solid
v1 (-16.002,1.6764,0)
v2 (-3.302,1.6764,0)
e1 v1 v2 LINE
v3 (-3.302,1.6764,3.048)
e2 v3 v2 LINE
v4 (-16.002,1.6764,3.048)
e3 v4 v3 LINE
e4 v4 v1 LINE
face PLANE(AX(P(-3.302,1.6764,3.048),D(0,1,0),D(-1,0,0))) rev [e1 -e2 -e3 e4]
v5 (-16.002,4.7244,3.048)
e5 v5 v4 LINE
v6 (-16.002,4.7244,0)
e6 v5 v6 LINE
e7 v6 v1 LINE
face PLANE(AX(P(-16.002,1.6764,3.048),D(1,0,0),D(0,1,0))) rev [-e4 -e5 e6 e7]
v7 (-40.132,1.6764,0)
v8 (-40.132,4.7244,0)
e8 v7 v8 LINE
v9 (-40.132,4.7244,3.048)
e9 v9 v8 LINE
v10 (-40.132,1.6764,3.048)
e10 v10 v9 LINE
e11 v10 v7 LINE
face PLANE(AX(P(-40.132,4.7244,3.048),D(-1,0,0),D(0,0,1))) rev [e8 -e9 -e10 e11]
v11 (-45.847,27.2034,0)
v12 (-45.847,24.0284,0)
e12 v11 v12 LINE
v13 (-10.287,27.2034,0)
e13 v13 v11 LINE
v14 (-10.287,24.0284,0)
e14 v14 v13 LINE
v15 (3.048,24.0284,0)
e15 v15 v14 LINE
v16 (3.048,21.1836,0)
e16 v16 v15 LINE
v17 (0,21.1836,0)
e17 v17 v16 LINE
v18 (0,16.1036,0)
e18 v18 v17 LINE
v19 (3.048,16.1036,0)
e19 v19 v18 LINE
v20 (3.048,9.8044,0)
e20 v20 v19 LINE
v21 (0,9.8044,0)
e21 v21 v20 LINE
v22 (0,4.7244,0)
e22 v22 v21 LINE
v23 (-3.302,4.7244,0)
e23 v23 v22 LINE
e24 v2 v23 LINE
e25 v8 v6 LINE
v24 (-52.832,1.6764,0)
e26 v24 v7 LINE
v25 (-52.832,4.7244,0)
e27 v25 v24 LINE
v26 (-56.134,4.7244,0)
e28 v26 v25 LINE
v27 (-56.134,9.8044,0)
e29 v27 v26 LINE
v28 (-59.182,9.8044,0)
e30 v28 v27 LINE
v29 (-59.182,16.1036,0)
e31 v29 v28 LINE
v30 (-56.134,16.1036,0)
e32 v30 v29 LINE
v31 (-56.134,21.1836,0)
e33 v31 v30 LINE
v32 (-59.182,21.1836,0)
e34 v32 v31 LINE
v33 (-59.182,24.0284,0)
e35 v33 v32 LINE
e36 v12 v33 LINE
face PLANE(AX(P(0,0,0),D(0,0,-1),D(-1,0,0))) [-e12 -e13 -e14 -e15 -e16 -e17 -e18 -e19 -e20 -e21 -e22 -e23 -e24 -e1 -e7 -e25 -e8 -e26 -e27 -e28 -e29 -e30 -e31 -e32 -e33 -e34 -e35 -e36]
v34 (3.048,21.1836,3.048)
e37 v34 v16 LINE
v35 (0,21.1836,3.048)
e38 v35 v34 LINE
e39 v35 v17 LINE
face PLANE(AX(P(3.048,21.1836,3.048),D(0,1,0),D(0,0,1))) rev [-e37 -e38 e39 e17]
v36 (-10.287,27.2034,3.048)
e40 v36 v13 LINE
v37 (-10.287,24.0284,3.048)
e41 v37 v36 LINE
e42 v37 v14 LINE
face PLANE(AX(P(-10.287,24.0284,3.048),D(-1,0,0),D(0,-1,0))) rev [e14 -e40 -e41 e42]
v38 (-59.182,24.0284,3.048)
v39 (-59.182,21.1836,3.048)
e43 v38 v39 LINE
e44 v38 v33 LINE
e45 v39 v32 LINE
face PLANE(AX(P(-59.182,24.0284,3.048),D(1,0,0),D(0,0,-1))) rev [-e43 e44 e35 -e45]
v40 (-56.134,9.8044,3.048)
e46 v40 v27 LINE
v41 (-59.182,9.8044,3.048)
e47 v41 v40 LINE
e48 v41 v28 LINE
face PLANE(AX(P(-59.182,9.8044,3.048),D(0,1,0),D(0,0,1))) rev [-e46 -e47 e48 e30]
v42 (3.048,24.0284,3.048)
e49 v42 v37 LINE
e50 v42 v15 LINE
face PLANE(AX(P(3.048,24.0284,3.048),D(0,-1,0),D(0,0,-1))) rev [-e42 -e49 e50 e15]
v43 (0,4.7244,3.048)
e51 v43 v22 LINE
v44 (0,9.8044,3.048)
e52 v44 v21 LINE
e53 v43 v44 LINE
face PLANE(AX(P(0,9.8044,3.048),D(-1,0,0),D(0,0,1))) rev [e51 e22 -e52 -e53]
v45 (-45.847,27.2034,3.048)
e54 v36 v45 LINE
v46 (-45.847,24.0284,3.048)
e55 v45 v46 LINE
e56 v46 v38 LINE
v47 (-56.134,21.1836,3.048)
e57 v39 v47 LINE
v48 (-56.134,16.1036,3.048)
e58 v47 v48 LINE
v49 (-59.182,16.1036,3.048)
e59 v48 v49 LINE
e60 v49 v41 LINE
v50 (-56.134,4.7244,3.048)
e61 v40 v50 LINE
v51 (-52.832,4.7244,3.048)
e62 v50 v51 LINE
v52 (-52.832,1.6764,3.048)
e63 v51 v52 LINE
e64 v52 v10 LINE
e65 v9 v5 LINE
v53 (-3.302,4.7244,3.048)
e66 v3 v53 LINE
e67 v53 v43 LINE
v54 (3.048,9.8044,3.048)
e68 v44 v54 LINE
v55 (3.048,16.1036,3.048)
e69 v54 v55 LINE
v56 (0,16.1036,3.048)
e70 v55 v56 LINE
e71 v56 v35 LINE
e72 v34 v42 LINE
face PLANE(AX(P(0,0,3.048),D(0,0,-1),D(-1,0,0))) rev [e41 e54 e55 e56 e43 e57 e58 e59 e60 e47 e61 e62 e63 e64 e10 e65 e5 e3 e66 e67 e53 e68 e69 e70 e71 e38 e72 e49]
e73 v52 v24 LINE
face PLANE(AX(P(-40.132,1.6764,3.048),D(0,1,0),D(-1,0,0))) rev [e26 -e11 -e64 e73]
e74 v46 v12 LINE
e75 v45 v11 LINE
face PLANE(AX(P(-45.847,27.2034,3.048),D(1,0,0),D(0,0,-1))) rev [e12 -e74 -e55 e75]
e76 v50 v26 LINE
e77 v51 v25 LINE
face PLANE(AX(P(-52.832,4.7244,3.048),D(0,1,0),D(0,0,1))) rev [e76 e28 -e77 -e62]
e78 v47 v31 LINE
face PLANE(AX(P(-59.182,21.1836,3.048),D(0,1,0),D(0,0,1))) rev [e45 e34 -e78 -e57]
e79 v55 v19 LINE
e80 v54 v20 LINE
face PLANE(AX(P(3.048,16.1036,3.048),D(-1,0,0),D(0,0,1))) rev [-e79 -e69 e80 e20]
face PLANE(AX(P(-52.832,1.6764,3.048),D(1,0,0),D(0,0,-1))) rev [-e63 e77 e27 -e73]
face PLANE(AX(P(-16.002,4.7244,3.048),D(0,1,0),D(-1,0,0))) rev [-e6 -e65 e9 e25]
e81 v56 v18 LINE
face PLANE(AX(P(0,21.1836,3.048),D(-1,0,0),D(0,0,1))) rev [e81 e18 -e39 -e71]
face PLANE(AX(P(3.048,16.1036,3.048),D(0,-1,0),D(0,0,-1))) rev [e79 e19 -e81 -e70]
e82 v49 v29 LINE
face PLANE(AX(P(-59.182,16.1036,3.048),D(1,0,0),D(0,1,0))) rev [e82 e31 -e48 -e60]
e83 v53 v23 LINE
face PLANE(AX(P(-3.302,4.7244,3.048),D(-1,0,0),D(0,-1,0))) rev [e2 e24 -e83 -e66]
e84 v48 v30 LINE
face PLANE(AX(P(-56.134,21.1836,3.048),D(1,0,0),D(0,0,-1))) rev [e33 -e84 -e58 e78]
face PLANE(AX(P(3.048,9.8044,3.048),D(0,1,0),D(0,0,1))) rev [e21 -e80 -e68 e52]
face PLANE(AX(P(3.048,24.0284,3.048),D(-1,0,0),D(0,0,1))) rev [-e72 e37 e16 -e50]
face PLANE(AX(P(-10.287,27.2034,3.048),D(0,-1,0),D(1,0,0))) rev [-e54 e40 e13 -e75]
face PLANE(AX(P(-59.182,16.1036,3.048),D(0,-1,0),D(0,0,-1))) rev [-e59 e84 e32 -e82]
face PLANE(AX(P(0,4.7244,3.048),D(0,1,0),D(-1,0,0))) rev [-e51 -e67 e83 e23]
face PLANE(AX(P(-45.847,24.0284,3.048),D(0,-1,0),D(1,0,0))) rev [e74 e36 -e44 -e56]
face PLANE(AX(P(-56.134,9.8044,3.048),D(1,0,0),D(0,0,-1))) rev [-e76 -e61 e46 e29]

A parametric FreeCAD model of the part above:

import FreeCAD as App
import Part
import Sketcher
Q = App.Units.Quantity


def add_polygon(sketch, points):
    """Adds a closed chain of lines whose ends are joined by coincident constraints."""
    first, n = sketch.GeometryCount, len(points)
    for a, b in zip(points, points[1:] + points[:1]):
        sketch.addGeometry(Part.LineSegment(App.Vector(*a, 0), App.Vector(*b, 0)), False)
    for i in range(n):
        sketch.addConstraint(Sketcher.Constraint("Coincident", first + i, 2, first + (i + 1) % n, 1))

doc = App.newDocument("Part")
params = doc.addObject("Spreadsheet::Sheet", "Params")
for row, (alias, value) in enumerate([
    ("sketch1_width", "1.4 in"),
    ("sketch1_width2", "0.5 in"),
    ("sketch1_height", "0.2 in"),
    ("sketch1_width3", "0.12 in"),
    ("sketch1_width4", "0.13 in"),
    ("pad1_length", "0.12 in"),
], start=1):
    params.set(f"A{row}", alias)
    params.set(f"B{row}", "=" + value)
    params.setAlias(f"B{row}", alias)

body = doc.addObject("PartDesign::Body", "Body")

# Sketch on XY plane
sketch1 = doc.addObject("Sketcher::SketchObject", "Sketch")
body.addObject(sketch1)
sketch1.AttachmentSupport = (doc.XY_Plane, [""])
sketch1.MapMode = "FlatFace"
add_polygon(sketch1, [(0, 9.8), (3, 9.8), (3, 16.1), (0, 16.1), (0, 21.2), (3, 21.2), (3, 24), (-10.3, 24), (-10.3, 27.2), (-45.8, 27.2), (-45.8, 24), (-59.2, 24), (-59.2, 21.2), (-56.1, 21.2), (-56.1, 16.1), (-59.2, 16.1), (-59.2, 9.8), (-56.1, 9.8), (-56.1, 4.7), (-52.8, 4.7), (-52.8, 1.7), (-40.1, 1.7), (-40.1, 4.7), (-16, 4.7), (-16, 1.7), (-3.3, 1.7), (-3.3, 4.7), (0, 4.7)])  # lines 0-27
sketch1.addConstraint([
    Sketcher.Constraint("Horizontal", 0),
    Sketcher.Constraint("Vertical", 1),
    Sketcher.Constraint("Horizontal", 2),
    Sketcher.Constraint("Vertical", 3),
    Sketcher.Constraint("Horizontal", 4),
    Sketcher.Constraint("Vertical", 5),
    Sketcher.Constraint("Horizontal", 6),
    Sketcher.Constraint("Vertical", 7),
    Sketcher.Constraint("Horizontal", 8),
    Sketcher.Constraint("Vertical", 9),
    Sketcher.Constraint("Horizontal", 10),
    Sketcher.Constraint("Vertical", 11),
    Sketcher.Constraint("Horizontal", 12),
    Sketcher.Constraint("Vertical", 13),
    Sketcher.Constraint("Horizontal", 14),
    Sketcher.Constraint("Vertical", 15),
    Sketcher.Constraint("Horizontal", 16),
    Sketcher.Constraint("Vertical", 17),
    Sketcher.Constraint("Horizontal", 18),
    Sketcher.Constraint("Vertical", 19),
    Sketcher.Constraint("Horizontal", 20),
    Sketcher.Constraint("Vertical", 21),
    Sketcher.Constraint("Horizontal", 22),
    Sketcher.Constraint("Vertical", 23),
    Sketcher.Constraint("Horizontal", 24),
    Sketcher.Constraint("Vertical", 25),
    Sketcher.Constraint("Horizontal", 26),
    Sketcher.Constraint("Vertical", 27),
    Sketcher.Constraint("PointOnObject", 2, 2, -2),
    Sketcher.Constraint("PointOnObject", 26, 2, -2),
    Sketcher.Constraint("Horizontal", 6, 2, 9, 2),
    Sketcher.Constraint("Horizontal", 4, 2, 11, 2),
    Sketcher.Constraint("Horizontal", 2, 2, 13, 2),
    Sketcher.Constraint("Horizontal", 0, 2, 15, 2),
    Sketcher.Constraint("Horizontal", 18, 2, 21, 2),
    Sketcher.Constraint("Horizontal", 20, 2, 23, 2),
    Sketcher.Constraint("Horizontal", 22, 2, 25, 2),
    Sketcher.Constraint("Vertical", 1, 2, 4, 2),
    Sketcher.Constraint("Vertical", 11, 2, 14, 2),
    Sketcher.Constraint("Vertical", 13, 2, 16, 2),
    Sketcher.Constraint("Equal", 6, 10),
    Sketcher.Constraint("Equal", 4, 12),
    Sketcher.Constraint("Equal", 20, 24),
    Sketcher.Constraint("Equal", 18, 26),
    Sketcher.Constraint("Equal", 13, 17),
    Sketcher.Constraint("Equal", 16, 19),
    Sketcher.Constraint("DistanceX", 8, 2, 8, 1, Q("1.4 in")),
    Sketcher.Constraint("DistanceX", 20, 1, 20, 2, Q("0.5 in")),
    Sketcher.Constraint("DistanceY", 3, 1, 3, 2, Q("0.2 in")),
    Sketcher.Constraint("DistanceX", 0, 1, 0, 2, Q("0.12 in")),
    Sketcher.Constraint("DistanceX", 18, 1, 18, 2, Q("0.13 in")),
    Sketcher.Constraint("DistanceX", 22, 1, 22, 2, Q("0.95 in")),
    Sketcher.Constraint("DistanceY", 1, 1, 1, 2, Q("0.248 in")),
    Sketcher.Constraint("DistanceY", 5, 1, 5, 2, Q("0.112 in")),
    Sketcher.Constraint("DistanceY", 7, 1, 7, 2, Q("0.125 in")),
    Sketcher.Constraint("DistanceY", -1, 1, 0, 2, Q("0.386 in")),
])
sketch1.setExpression("Constraints[74]", "Params.sketch1_width")
sketch1.setExpression("Constraints[75]", "Params.sketch1_width2")
sketch1.setExpression("Constraints[76]", "Params.sketch1_height")
sketch1.setExpression("Constraints[77]", "Params.sketch1_width3")
sketch1.setExpression("Constraints[78]", "Params.sketch1_width4")
pad1 = doc.addObject("PartDesign::Pad", "Pad")
body.addObject(pad1)
pad1.Profile = sketch1
pad1.setExpression("Length", "Params.pad1_length")

doc.recompute()
